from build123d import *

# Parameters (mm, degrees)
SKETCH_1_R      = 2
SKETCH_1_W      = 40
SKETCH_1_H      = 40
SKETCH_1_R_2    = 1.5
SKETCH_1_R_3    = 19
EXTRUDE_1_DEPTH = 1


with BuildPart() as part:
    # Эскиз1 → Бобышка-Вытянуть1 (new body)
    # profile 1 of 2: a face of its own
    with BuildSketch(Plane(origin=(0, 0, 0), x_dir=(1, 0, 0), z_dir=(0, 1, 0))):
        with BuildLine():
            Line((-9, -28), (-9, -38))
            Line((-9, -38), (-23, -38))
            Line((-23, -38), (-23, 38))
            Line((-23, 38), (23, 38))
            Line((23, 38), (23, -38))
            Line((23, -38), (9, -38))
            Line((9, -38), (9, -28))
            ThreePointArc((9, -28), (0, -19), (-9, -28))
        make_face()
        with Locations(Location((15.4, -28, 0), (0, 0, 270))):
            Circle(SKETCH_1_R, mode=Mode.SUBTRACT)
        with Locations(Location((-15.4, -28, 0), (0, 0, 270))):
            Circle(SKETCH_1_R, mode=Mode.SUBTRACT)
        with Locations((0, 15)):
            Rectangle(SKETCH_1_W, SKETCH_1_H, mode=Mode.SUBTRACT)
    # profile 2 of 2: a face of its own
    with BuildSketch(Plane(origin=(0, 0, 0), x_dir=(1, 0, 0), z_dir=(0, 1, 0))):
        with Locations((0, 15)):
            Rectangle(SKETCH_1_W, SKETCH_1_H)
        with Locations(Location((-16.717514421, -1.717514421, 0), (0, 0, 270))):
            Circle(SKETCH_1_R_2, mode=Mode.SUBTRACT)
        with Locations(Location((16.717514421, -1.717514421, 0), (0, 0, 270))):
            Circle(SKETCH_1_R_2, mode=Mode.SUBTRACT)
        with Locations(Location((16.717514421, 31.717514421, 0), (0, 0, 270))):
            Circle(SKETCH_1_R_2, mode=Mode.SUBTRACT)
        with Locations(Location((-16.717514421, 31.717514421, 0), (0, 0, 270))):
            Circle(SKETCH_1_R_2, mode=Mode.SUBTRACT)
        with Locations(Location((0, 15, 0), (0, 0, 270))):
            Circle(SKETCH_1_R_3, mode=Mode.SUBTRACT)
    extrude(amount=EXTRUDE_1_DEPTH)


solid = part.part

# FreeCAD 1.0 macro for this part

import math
import FreeCAD as App
import Part
import Sketcher

V = App.Vector

doc = App.newDocument("Part")
params = doc.addObject("Spreadsheet::Sheet", "Params")
for row, (alias, value) in enumerate([
    ("sketch1_diameter", "4 mm"),
    ("sketch1_diameter2", "3 mm"),
    ("sketch1_diameter3", "38 mm"),
    ("sketch1_radius", "9 mm"),
    ("sketch1_width", "14 mm"),
    ("pad1_length", "1 mm"),
], start=1):
    params.set(f"A{row}", alias)
    params.set(f"B{row}", "=" + value)
    params.setAlias(f"B{row}", alias)

body = doc.addObject("PartDesign::Body", "Body")

# Sketch on XZ plane
sketch1 = body.newObject("Sketcher::SketchObject", "Sketch")
sketch1.AttachmentSupport = (doc.getObject("XZ_Plane"), [""])
sketch1.MapMode = "FlatFace"
sketch1.addGeometry([
    Part.LineSegment(V(-9, 38, 0), V(-9, 28, 0)),  # 0
    Part.ArcOfCircle(Part.Circle(V(0, 28, 0), V(0, 0, 1), 9), math.radians(180), math.radians(360)),  # 1
    Part.LineSegment(V(9, 28, 0), V(9, 38, 0)),  # 2
    Part.LineSegment(V(9, 38, 0), V(23, 38, 0)),  # 3
    Part.LineSegment(V(23, 38, 0), V(23, -38, 0)),  # 4
    Part.LineSegment(V(23, -38, 0), V(-23, -38, 0)),  # 5
    Part.LineSegment(V(-23, -38, 0), V(-23, 38, 0)),  # 6
    Part.LineSegment(V(-23, 38, 0), V(-9, 38, 0)),  # 7
    Part.Circle(V(15.4, 28, 0), V(0, 0, 1), 2),  # 8
    Part.Circle(V(-15.4, 28, 0), V(0, 0, 1), 2),  # 9
    Part.Circle(V(16.7, -31.7, 0), V(0, 0, 1), 1.5),  # 10
    Part.Circle(V(16.7, 1.7, 0), V(0, 0, 1), 1.5),  # 11
    Part.Circle(V(0, -15, 0), V(0, 0, 1), 19),  # 12
    Part.Circle(V(-16.7, -31.7, 0), V(0, 0, 1), 1.5),  # 13
    Part.Circle(V(-16.7, 1.7, 0), V(0, 0, 1), 1.5),  # 14
], False)
sketch1.addConstraint([
    Sketcher.Constraint("Tangent", 0, 2, 1, 1),
    Sketcher.Constraint("Tangent", 1, 2, 2, 1),
    Sketcher.Constraint("Coincident", 2, 2, 3, 1),
    Sketcher.Constraint("Coincident", 3, 2, 4, 1),
    Sketcher.Constraint("Coincident", 4, 2, 5, 1),
    Sketcher.Constraint("Coincident", 5, 2, 6, 1),
    Sketcher.Constraint("Coincident", 6, 2, 7, 1),
    Sketcher.Constraint("Coincident", 7, 2, 0, 1),
    Sketcher.Constraint("Vertical", 0),
    Sketcher.Constraint("Vertical", 2),
    Sketcher.Constraint("Horizontal", 3),
    Sketcher.Constraint("Vertical", 4),
    Sketcher.Constraint("Horizontal", 5),
    Sketcher.Constraint("Vertical", 6),
    Sketcher.Constraint("Horizontal", 7),
    Sketcher.Constraint("Equal", 8, 9),
    Sketcher.Constraint("Equal", 10, 11),
    Sketcher.Constraint("Equal", 11, 13),
    Sketcher.Constraint("Equal", 13, 14),
    Sketcher.Constraint("Symmetric", 3, 2, 5, 2, -1, 1),
    Sketcher.Constraint("Symmetric", 8, 3, 9, 3, -2),
    Sketcher.Constraint("Symmetric", 10, 3, 13, 3, -2),
    Sketcher.Constraint("Symmetric", 11, 3, 14, 3, -2),
    Sketcher.Constraint("Symmetric", 2, 2, 7, 2, -2),
    Sketcher.Constraint("PointOnObject", 12, 3, -2),
    Sketcher.Constraint("Horizontal", 1, 3, 8, 3),
    Sketcher.Constraint("Vertical", 10, 3, 11, 3),
    Sketcher.Constraint("Diameter", 8, 4.0),
    Sketcher.Constraint("Diameter", 10, 3.0),
    Sketcher.Constraint("Diameter", 12, 38.0),
    Sketcher.Constraint("Radius", 1, 9.0),
    Sketcher.Constraint("DistanceX", 3, 1, 3, 2, 14.0),
    Sketcher.Constraint("DistanceY", 0, 2, 0, 1, 10.0),
    Sketcher.Constraint("DistanceY", 4, 2, 4, 1, 76.0),
    Sketcher.Constraint("DistanceY", 12, 3, -1, 1, 15.0),
    Sketcher.Constraint("DistanceX", -1, 1, 8, 3, 15.4),
    Sketcher.Constraint("DistanceY", 10, 3, 11, 3, 33.435029),
    Sketcher.Constraint("DistanceX", 13, 3, 10, 3, 33.435029),
    Sketcher.Constraint("DistanceY", 10, 3, -1, 1, 31.717514),
])
sketch1.setExpression("Constraints[27]", "Params.sketch1_diameter")
sketch1.setExpression("Constraints[28]", "Params.sketch1_diameter2")
sketch1.setExpression("Constraints[29]", "Params.sketch1_diameter3")
sketch1.setExpression("Constraints[30]", "Params.sketch1_radius")
sketch1.setExpression("Constraints[31]", "Params.sketch1_width")
pad1 = body.newObject("PartDesign::Pad", "Pad")
pad1.Profile = sketch1
pad1.setExpression("Length", "Params.pad1_length")
pad1.Reversed = True

doc.recompute()
